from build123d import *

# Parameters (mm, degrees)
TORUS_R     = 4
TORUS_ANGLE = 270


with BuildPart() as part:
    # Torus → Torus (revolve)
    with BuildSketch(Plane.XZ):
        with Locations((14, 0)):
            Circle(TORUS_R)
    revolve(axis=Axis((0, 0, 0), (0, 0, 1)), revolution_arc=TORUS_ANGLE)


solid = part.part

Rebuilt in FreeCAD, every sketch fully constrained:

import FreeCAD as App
import Part
import Sketcher
from FreeCAD import Vector

doc = App.newDocument("Part")
body = doc.addObject("PartDesign::Body", "Body")

# Sketch on XZ plane
sketch1 = body.newObject("Sketcher::SketchObject", "Sketch")
sketch1.AttachmentSupport = (doc.getObject("XZ_Plane"), [""])
sketch1.MapMode = "FlatFace"
sketch1.addGeometry(Part.Circle(Vector(14, 0, 0), Vector(0, 0, 1), 4), False)
sketch1.addConstraint(Sketcher.Constraint("PointOnObject", 0, 3, -1))
sketch1.addConstraint(Sketcher.Constraint("Diameter", 0, 8.0))
sketch1.addConstraint(Sketcher.Constraint("DistanceX", -1, 1, 0, 3, 14.0))
revolution = body.newObject("PartDesign::Revolution", "Revolution")
revolution.Profile = sketch1
revolution.ReferenceAxis = (sketch1, ["V_Axis"])
revolution.Angle = 270

doc.recompute()
